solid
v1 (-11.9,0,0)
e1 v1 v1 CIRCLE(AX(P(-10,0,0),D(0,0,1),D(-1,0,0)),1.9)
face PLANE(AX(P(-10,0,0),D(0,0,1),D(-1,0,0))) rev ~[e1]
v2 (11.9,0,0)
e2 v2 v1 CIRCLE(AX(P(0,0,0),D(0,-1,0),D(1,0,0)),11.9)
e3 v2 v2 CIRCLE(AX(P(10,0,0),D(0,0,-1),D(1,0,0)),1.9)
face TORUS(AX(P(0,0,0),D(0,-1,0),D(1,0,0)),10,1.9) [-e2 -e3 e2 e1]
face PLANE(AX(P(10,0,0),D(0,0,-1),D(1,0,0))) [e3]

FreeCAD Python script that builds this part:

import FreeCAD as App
import Part
import Sketcher
from FreeCAD import Vector

doc = App.newDocument("Part")
body = doc.addObject("PartDesign::Body", "Body")

# Sketch on XY plane
sketch1 = body.newObject("Sketcher::SketchObject", "Sketch")
sketch1.AttachmentSupport = (doc.getObject("XY_Plane"), [""])
sketch1.MapMode = "FlatFace"
sketch1.addGeometry(Part.Circle(Vector(10, 0, 0), Vector(0, 0, 1), 1.9), False)
sketch1.addConstraint([
    Sketcher.Constraint("PointOnObject", 0, 3, -1),
    Sketcher.Constraint("Diameter", 0, 3.8),
    Sketcher.Constraint("DistanceX", -1, 1, 0, 3, 10.0),
])
revolution = body.newObject("PartDesign::Revolution", "Revolution")
revolution.Profile = sketch1
revolution.ReferenceAxis = (sketch1, ["V_Axis"])
revolution.Angle = 180
revolution.Reversed = True

doc.recompute()
